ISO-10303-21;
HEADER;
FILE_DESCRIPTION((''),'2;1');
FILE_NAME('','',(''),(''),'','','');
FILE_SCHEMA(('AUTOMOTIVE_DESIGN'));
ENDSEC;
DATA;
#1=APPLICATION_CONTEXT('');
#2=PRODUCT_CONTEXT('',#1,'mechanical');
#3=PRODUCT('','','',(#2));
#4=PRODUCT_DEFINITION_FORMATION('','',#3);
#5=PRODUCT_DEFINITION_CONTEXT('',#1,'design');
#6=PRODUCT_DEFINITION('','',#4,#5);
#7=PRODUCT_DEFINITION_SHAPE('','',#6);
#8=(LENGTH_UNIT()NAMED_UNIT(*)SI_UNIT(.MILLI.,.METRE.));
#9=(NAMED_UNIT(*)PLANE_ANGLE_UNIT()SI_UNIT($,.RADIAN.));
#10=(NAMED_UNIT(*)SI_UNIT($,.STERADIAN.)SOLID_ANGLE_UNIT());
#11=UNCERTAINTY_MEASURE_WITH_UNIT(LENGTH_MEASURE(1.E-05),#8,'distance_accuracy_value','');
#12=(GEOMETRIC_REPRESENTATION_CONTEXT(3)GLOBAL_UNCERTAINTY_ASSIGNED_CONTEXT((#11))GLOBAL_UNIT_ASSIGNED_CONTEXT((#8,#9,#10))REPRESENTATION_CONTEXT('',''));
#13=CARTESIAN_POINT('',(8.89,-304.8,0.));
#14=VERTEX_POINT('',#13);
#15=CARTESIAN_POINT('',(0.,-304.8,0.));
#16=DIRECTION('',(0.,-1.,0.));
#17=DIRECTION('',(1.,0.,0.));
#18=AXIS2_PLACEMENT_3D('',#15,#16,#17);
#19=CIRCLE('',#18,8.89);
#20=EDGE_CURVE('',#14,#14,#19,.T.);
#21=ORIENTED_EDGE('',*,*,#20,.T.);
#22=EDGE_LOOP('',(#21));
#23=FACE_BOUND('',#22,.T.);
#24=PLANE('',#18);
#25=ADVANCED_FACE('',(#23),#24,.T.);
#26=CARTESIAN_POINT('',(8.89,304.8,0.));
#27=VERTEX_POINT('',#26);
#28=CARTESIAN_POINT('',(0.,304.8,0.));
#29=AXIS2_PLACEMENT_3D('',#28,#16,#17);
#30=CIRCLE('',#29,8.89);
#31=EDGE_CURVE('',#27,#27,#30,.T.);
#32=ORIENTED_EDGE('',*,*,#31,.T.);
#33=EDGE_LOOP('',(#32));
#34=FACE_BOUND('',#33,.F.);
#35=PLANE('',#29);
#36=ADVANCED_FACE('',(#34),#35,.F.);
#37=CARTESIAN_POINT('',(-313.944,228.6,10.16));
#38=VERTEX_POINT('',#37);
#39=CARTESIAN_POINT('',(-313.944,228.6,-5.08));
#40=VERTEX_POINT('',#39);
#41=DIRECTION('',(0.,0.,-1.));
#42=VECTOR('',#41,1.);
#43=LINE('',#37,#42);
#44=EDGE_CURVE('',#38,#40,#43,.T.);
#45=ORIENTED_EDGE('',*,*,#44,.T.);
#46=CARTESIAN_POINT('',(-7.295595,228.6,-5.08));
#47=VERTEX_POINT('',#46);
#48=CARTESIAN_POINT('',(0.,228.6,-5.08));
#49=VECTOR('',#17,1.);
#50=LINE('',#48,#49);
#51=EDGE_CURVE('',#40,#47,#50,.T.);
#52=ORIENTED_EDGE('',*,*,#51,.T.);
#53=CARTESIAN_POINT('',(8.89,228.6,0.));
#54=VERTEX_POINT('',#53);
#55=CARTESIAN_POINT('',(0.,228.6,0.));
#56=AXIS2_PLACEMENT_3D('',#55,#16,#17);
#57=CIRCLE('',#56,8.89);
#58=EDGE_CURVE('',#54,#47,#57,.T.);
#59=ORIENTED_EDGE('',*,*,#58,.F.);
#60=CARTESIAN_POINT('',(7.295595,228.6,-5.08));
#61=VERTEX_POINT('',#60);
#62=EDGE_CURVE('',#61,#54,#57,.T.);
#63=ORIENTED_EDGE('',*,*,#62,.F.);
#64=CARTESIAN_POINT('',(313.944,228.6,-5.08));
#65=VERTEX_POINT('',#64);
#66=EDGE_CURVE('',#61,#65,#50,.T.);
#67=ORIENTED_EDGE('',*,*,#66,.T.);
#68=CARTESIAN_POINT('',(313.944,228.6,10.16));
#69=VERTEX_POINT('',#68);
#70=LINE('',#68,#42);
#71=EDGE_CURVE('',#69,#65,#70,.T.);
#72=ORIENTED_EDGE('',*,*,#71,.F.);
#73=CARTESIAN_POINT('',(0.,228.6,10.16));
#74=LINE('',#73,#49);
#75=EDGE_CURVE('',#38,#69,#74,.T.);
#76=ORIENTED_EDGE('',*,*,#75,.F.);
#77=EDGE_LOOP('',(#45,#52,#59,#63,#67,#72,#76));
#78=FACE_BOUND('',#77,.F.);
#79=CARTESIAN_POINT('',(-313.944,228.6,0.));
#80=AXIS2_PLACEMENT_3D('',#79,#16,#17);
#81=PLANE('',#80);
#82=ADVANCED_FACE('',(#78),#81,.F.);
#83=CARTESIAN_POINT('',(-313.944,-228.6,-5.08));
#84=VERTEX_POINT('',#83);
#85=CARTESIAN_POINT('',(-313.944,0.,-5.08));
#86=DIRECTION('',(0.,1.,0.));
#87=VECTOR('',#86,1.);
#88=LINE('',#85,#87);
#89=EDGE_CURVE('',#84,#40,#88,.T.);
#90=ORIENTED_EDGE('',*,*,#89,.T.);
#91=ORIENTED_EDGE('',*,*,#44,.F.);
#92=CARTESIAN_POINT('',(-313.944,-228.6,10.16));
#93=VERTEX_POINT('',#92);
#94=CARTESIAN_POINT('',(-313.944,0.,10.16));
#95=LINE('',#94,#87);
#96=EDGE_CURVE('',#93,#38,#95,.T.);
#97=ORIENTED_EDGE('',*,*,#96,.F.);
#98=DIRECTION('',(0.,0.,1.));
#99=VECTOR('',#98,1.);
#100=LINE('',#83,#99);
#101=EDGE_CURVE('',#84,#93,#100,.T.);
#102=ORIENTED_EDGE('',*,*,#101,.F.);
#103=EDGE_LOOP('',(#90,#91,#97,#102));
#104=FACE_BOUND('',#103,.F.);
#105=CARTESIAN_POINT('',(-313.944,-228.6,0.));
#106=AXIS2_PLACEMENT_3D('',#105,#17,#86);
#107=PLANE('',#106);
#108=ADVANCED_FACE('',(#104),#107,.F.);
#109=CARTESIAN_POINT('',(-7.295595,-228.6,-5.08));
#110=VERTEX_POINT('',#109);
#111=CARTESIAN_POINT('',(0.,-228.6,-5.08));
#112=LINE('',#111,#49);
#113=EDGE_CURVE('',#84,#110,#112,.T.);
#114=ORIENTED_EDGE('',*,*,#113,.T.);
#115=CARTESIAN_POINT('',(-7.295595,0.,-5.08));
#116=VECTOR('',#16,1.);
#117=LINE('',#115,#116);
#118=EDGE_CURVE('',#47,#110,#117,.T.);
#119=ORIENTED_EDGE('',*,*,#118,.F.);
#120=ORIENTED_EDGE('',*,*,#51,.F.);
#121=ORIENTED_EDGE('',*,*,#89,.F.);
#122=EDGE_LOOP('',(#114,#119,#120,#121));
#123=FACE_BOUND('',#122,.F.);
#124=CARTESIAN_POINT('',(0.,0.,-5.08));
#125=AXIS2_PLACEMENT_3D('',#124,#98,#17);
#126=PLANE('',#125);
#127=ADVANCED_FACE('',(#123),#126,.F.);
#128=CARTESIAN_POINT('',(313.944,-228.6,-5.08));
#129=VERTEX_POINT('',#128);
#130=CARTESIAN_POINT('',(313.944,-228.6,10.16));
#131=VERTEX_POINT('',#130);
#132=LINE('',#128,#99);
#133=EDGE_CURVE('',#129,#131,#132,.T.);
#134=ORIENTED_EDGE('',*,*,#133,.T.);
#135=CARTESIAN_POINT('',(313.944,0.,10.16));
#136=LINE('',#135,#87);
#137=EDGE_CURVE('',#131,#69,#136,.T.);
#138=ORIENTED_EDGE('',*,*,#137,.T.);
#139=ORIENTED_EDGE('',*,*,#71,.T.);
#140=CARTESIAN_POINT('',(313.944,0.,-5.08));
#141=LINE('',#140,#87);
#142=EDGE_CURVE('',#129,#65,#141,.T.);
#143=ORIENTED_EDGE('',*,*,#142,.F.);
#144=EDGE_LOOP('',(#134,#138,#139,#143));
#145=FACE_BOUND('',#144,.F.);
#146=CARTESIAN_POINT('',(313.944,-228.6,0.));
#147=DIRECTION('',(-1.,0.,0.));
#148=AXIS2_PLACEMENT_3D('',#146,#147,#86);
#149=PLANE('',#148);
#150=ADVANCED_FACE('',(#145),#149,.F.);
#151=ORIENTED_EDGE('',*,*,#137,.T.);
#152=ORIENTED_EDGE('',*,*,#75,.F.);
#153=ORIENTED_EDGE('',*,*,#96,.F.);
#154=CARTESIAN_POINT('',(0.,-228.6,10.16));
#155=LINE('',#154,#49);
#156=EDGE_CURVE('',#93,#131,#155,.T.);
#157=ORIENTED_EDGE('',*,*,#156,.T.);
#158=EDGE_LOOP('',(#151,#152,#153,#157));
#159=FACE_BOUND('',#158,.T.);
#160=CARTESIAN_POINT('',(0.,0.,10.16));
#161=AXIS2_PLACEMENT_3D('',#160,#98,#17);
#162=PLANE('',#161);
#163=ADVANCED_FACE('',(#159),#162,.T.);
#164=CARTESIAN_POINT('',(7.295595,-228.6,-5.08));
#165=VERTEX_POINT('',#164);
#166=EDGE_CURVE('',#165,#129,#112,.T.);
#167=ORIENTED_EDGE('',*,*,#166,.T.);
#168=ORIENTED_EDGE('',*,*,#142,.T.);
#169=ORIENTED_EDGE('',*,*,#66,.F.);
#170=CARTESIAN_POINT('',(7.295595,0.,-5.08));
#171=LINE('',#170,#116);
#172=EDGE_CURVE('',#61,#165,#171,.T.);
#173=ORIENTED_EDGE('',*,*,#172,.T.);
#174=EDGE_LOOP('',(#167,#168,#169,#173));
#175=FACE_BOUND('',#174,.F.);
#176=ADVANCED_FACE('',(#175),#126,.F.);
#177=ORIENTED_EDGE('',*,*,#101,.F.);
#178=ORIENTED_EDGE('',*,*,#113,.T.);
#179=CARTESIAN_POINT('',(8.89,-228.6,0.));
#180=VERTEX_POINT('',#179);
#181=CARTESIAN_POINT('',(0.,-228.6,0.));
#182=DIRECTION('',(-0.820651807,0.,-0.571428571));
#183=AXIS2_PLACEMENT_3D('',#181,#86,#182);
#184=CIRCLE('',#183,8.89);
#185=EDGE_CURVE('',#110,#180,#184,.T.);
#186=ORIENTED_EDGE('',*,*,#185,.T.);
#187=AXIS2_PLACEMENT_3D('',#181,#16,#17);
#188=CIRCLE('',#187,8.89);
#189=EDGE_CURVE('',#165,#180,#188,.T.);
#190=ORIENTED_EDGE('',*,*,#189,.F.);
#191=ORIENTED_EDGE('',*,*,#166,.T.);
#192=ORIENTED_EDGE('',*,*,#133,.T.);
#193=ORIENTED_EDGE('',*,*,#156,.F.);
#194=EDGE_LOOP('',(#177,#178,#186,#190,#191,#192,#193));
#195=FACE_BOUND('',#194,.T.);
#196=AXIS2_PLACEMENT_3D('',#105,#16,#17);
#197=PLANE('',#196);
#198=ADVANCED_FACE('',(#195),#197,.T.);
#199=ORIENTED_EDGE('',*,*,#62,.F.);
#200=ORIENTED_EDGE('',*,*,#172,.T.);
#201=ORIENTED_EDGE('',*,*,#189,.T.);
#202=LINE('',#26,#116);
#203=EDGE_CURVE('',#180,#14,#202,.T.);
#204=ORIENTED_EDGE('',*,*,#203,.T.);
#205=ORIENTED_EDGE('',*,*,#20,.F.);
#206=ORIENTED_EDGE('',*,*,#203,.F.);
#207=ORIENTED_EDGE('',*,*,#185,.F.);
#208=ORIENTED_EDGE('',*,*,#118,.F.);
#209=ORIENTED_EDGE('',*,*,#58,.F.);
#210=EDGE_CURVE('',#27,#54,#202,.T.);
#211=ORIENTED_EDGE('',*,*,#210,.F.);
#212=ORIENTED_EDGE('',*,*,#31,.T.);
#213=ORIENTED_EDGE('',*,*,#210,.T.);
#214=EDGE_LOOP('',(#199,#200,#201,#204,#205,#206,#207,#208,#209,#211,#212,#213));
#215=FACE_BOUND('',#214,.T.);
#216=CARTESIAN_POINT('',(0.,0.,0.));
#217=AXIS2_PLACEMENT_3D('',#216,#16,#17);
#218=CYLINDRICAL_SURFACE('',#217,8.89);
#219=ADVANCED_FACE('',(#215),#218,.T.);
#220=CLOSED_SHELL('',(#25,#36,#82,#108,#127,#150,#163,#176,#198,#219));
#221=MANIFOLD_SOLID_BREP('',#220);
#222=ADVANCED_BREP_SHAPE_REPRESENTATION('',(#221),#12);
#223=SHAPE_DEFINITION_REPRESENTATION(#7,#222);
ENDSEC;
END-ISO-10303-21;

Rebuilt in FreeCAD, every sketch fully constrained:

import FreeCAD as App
import Part
import Sketcher
Q = App.Units.Quantity


def add_polygon(sketch, points):
    """Adds a closed chain of lines whose ends are joined by coincident constraints."""
    first, n = sketch.GeometryCount, len(points)
    for a, b in zip(points, points[1:] + points[:1]):
        sketch.addGeometry(Part.LineSegment(App.Vector(*a, 0), App.Vector(*b, 0)), False)
    for i in range(n):
        sketch.addConstraint(Sketcher.Constraint("Coincident", first + i, 2, first + (i + 1) % n, 1))

doc = App.newDocument("Part")
params = doc.addObject("Spreadsheet::Sheet", "Params")
for row, (alias, value) in enumerate([
    ("sketch1_diameter", "0.7 in"),
    ("pad1_length", "12 in"),
    ("pad1_length2", "12 in"),
    ("sketch2_height", "18 in"),
    ("sketch2_width", "24.72 in"),
    ("pad2_length", "0.4 in"),
    ("pad2_length2", "0.2 in"),
], start=1):
    params.set(f"A{row}", alias)
    params.set(f"B{row}", "=" + value)
    params.setAlias(f"B{row}", alias)

body = doc.addObject("PartDesign::Body", "Body")

sketch1 = doc.addObject("Sketcher::SketchObject", "Sketch")
body.addObject(sketch1)
sketch1.AttachmentSupport = (doc.XZ_Plane, [""])
sketch1.MapMode = "FlatFace"
sketch1.addGeometry(Part.Circle(App.Vector(0, 0, 0), App.Vector(0, 0, 1), 8.89), False)
sketch1.addConstraint([
    Sketcher.Constraint("Coincident", 0, 3, -1, 1),
    Sketcher.Constraint("Diameter", 0, Q("0.7 in")),
])
sketch1.setExpression("Constraints[1]", "Params.sketch1_diameter")
pad1 = doc.addObject("PartDesign::Pad", "Pad")
body.addObject(pad1)
pad1.Profile = sketch1
pad1.Type = "TwoLengths"
pad1.setExpression("Length", "Params.pad1_length")
pad1.setExpression("Length2", "Params.pad1_length2")

sketch2 = doc.addObject("Sketcher::SketchObject", "Sketch001")
body.addObject(sketch2)
sketch2.AttachmentSupport = (doc.XY_Plane, [""])
sketch2.MapMode = "FlatFace"
add_polygon(sketch2, [(-313.944, 228.6), (-313.944, -228.6), (313.944, -228.6), (313.944, 228.6)])
sketch2.addConstraint([
    Sketcher.Constraint("Vertical", 0),
    Sketcher.Constraint("Horizontal", 1),
    Sketcher.Constraint("Vertical", 2),
    Sketcher.Constraint("Horizontal", 3),
    Sketcher.Constraint("Symmetric", 0, 2, 2, 2, -1, 1),
    Sketcher.Constraint("DistanceY", 0, 2, 0, 1, Q("18 in")),
    Sketcher.Constraint("DistanceX", 1, 1, 1, 2, Q("24.72 in")),
])
sketch2.setExpression("Constraints[9]", "Params.sketch2_height")
sketch2.setExpression("Constraints[10]", "Params.sketch2_width")
pad2 = doc.addObject("PartDesign::Pad", "Pad001")
body.addObject(pad2)
pad2.Profile = sketch2
pad2.Type = "TwoLengths"
pad2.setExpression("Length", "Params.pad2_length")
pad2.setExpression("Length2", "Params.pad2_length2")

doc.recompute()
